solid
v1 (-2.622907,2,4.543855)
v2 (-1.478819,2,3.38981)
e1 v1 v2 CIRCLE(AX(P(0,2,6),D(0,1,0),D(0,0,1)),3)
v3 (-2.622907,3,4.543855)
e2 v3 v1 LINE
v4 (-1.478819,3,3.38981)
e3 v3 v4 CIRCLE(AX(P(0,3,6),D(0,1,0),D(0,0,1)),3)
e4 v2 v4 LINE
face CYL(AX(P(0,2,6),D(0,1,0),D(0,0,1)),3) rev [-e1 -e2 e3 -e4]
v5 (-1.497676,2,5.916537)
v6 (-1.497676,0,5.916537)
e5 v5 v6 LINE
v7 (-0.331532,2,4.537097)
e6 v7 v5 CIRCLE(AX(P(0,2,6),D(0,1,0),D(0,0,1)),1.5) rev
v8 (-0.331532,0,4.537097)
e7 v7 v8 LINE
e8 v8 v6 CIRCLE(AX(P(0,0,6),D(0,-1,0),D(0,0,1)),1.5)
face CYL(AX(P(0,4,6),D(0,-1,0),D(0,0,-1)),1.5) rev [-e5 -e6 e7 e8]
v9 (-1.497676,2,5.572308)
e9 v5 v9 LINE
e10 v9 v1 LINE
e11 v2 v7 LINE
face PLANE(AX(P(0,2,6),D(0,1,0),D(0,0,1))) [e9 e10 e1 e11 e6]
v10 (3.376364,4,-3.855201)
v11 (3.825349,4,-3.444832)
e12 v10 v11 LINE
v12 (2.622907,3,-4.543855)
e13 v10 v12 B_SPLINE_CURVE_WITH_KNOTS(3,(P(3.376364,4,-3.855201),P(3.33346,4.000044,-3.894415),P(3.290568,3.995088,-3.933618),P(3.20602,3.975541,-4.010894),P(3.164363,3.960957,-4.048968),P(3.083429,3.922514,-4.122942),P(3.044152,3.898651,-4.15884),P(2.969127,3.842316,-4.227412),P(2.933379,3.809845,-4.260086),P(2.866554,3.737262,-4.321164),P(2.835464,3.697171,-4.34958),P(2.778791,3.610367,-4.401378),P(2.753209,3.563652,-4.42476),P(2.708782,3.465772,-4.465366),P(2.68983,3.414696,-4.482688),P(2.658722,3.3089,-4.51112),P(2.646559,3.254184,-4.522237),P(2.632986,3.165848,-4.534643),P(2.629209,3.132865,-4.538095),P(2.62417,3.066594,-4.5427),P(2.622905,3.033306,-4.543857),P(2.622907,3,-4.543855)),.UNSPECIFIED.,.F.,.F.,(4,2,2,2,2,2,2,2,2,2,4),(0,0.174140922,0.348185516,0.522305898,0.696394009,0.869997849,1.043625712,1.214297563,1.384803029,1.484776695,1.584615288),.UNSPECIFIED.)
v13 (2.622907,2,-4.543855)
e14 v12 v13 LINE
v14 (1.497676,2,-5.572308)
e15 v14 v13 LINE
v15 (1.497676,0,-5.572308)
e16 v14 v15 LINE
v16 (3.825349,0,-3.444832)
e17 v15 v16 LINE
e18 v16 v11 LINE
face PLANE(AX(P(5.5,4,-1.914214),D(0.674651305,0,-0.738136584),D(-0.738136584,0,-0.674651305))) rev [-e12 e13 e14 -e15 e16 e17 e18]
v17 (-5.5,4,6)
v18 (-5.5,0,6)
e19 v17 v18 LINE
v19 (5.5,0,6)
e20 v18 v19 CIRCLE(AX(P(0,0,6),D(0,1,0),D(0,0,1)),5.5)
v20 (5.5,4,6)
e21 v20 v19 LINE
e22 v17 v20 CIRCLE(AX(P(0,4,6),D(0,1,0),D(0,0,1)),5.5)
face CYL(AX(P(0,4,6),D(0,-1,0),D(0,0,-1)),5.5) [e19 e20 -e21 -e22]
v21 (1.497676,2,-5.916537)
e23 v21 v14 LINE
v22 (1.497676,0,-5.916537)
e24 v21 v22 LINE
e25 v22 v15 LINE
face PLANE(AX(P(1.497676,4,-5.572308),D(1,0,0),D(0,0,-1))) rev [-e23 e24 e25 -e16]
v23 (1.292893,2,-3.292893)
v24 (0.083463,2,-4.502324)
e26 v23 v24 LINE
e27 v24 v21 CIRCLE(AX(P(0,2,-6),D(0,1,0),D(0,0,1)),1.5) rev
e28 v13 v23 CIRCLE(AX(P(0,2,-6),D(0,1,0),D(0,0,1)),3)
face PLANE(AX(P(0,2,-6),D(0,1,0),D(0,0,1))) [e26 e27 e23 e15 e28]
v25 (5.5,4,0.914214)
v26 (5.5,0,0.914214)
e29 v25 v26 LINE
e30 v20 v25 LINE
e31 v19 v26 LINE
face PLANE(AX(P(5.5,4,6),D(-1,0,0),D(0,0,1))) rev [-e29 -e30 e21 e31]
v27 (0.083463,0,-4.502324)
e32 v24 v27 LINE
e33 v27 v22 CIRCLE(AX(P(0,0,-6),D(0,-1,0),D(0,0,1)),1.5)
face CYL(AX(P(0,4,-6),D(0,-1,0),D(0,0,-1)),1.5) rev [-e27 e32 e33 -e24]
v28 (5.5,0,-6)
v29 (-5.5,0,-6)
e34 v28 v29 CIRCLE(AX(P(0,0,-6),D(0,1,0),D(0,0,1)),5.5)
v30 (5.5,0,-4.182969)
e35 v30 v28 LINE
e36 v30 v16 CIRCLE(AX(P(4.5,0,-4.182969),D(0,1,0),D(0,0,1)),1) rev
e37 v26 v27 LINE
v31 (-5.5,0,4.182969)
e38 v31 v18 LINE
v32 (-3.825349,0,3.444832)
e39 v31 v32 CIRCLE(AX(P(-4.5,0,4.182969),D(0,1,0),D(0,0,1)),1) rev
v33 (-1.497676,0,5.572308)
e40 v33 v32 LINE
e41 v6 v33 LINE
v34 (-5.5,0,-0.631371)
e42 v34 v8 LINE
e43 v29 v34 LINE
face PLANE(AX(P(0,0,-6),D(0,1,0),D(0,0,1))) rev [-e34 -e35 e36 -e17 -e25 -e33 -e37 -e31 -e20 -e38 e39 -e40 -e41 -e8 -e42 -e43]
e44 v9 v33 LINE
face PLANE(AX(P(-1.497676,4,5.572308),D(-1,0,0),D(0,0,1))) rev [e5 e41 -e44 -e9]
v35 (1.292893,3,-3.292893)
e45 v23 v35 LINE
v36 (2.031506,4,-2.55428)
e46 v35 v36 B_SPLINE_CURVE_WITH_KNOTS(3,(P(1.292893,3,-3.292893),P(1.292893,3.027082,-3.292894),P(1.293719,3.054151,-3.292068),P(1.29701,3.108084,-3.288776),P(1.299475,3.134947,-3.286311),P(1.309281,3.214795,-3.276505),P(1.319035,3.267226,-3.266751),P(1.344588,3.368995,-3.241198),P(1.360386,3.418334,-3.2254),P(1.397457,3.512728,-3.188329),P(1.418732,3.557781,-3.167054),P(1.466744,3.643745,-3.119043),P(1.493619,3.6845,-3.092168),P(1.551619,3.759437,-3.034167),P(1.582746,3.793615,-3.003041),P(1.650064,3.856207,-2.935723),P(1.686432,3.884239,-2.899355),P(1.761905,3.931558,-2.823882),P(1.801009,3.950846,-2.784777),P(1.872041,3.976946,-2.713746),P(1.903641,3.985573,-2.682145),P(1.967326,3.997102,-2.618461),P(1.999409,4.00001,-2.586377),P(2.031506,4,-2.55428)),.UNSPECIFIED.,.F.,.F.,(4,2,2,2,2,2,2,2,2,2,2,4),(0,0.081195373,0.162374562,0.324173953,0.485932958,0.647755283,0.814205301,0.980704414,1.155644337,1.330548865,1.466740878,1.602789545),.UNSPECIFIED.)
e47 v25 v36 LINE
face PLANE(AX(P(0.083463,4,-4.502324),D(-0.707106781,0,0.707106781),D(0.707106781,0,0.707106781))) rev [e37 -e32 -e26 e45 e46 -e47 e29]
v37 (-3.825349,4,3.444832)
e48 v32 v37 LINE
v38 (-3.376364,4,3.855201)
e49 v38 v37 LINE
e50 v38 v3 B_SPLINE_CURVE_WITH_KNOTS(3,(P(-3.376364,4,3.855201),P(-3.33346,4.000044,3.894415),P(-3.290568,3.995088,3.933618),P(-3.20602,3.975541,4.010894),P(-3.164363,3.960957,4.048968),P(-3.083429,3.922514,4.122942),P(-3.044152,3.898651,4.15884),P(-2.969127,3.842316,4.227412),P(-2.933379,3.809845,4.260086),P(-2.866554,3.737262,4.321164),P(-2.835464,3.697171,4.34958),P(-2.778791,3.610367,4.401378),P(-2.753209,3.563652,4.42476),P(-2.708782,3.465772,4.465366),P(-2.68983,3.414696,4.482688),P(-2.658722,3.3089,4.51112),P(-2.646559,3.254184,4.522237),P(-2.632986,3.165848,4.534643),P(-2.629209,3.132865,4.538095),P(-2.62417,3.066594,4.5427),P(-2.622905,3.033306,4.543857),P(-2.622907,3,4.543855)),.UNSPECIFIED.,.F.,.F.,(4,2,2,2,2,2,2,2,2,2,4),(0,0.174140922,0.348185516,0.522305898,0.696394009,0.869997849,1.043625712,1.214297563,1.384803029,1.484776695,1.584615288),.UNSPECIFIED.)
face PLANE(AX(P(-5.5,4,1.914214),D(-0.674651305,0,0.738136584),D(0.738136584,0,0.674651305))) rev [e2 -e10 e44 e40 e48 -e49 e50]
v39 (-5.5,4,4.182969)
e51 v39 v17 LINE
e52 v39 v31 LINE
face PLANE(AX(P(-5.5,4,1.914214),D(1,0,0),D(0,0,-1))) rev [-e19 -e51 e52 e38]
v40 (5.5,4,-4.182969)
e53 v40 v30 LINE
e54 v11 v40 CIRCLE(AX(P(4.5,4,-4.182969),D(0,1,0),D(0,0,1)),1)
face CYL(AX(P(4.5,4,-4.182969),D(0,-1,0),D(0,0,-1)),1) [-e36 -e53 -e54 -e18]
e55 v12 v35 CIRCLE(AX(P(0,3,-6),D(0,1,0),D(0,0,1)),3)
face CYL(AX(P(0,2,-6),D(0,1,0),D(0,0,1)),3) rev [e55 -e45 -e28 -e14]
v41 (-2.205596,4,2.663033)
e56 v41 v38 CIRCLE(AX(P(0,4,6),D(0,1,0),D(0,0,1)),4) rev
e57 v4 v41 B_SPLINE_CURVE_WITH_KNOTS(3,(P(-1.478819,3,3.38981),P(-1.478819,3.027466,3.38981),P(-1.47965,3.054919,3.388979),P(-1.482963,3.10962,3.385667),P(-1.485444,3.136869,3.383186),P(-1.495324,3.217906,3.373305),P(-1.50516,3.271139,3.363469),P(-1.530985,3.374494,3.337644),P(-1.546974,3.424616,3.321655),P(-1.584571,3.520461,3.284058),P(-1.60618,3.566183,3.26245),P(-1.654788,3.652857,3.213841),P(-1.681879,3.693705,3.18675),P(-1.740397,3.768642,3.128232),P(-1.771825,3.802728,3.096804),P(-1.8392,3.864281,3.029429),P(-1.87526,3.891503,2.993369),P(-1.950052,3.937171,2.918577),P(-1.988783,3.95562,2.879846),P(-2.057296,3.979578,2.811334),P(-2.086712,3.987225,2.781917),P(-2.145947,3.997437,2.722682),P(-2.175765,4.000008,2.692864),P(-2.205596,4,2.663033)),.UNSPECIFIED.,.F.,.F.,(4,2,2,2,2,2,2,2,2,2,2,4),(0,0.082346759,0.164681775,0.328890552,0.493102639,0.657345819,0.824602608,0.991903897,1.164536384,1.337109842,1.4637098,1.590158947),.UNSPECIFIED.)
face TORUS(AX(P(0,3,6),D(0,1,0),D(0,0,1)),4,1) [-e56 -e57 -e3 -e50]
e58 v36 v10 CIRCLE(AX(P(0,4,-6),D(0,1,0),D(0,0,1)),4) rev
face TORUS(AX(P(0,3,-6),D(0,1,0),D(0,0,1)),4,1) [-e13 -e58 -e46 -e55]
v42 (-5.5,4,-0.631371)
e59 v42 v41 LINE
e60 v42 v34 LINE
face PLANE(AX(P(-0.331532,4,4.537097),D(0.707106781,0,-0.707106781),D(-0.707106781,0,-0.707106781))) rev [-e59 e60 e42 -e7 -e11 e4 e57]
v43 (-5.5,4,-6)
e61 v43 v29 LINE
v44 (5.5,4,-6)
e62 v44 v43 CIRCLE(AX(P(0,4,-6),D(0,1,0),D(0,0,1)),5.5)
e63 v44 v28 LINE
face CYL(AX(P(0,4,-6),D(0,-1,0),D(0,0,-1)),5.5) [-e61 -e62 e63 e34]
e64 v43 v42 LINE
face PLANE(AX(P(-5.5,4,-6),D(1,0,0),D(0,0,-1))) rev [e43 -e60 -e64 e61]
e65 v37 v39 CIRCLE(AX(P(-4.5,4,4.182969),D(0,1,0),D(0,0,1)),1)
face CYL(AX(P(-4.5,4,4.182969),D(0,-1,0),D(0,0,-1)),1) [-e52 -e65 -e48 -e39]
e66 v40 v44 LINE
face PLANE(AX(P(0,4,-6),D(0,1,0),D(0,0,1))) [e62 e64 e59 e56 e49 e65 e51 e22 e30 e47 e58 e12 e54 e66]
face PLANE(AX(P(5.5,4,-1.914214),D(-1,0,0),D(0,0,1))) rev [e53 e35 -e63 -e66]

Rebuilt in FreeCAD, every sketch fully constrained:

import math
import FreeCAD as App
import Part
import Sketcher
Q = App.Units.Quantity


def edges_at(feature, points):
    """Names of the edges that pass closest to the given points."""
    edges = feature.Shape.Edges
    near = lambda p: min(range(len(edges)), key=lambda i: edges[i].distToShape(Part.Vertex(*p))[0])
    return sorted({f"Edge{near(p) + 1}" for p in points})

doc = App.newDocument("Part")
body = doc.addObject("PartDesign::Body", "Body")

sketch1 = body.newObject("Sketcher::SketchObject", "Sketch")
sketch1.AttachmentSupport = (doc.getObject("XZ_Plane"), [""])
sketch1.MapMode = "FlatFace"
sketch1.addGeometry(Part.LineSegment(App.Vector(-5.5, -6, 0), App.Vector(-5.5, -0.63, 0)), False)
sketch1.addGeometry(Part.LineSegment(App.Vector(-5.5, -0.63, 0), App.Vector(-0.33, 4.54, 0)), False)
sketch1.addGeometry(Part.ArcOfCircle(Part.Circle(App.Vector(0, 6, 0), App.Vector(0, 0, 1), 1.5), math.radians(-103), math.radians(183)), False)
sketch1.addGeometry(Part.LineSegment(App.Vector(-1.5, 5.92, 0), App.Vector(-1.5, 5.57, 0)), False)
sketch1.addGeometry(Part.LineSegment(App.Vector(-1.5, 5.57, 0), App.Vector(-5.5, 1.91, 0)), False)
sketch1.addGeometry(Part.LineSegment(App.Vector(-5.5, 1.91, 0), App.Vector(-5.5, 6, 0)), False)
sketch1.addGeometry(Part.ArcOfCircle(Part.Circle(App.Vector(0, 6, 0), App.Vector(0, 0, 1), 5.5), math.radians(0), math.radians(180)), False)
sketch1.addGeometry(Part.LineSegment(App.Vector(5.5, 6, 0), App.Vector(5.5, 0.91, 0)), False)
sketch1.addGeometry(Part.LineSegment(App.Vector(5.5, 0.91, 0), App.Vector(0.08, -4.5, 0)), False)
sketch1.addGeometry(Part.ArcOfCircle(Part.Circle(App.Vector(0, -6, 0), App.Vector(0, 0, 1), 1.5), math.radians(87), math.radians(363)), False)
sketch1.addGeometry(Part.LineSegment(App.Vector(1.5, -5.92, 0), App.Vector(1.5, -5.57, 0)), False)
sketch1.addGeometry(Part.LineSegment(App.Vector(1.5, -5.57, 0), App.Vector(5.5, -1.91, 0)), False)
sketch1.addGeometry(Part.LineSegment(App.Vector(5.5, -1.91, 0), App.Vector(5.5, -6, 0)), False)
sketch1.addGeometry(Part.ArcOfCircle(Part.Circle(App.Vector(0, -6, 0), App.Vector(0, 0, 1), 5.5), math.radians(180), math.radians(360)), False)
sketch1.addConstraint(Sketcher.Constraint("Coincident", 0, 2, 1, 1))
sketch1.addConstraint(Sketcher.Constraint("Coincident", 1, 2, 2, 1))
sketch1.addConstraint(Sketcher.Constraint("Coincident", 2, 2, 3, 1))
sketch1.addConstraint(Sketcher.Constraint("Coincident", 3, 2, 4, 1))
sketch1.addConstraint(Sketcher.Constraint("Coincident", 4, 2, 5, 1))
sketch1.addConstraint(Sketcher.Constraint("Tangent", 5, 2, 6, 2))
sketch1.addConstraint(Sketcher.Constraint("Tangent", 6, 1, 7, 1))
sketch1.addConstraint(Sketcher.Constraint("Coincident", 7, 2, 8, 1))
sketch1.addConstraint(Sketcher.Constraint("Coincident", 8, 2, 9, 1))
sketch1.addConstraint(Sketcher.Constraint("Coincident", 9, 2, 10, 1))
sketch1.addConstraint(Sketcher.Constraint("Coincident", 10, 2, 11, 1))
sketch1.addConstraint(Sketcher.Constraint("Coincident", 11, 2, 12, 1))
sketch1.addConstraint(Sketcher.Constraint("Tangent", 12, 2, 13, 2))
sketch1.addConstraint(Sketcher.Constraint("Tangent", 13, 1, 0, 1))
sketch1.addConstraint(Sketcher.Constraint("Vertical", 0))
sketch1.addConstraint(Sketcher.Constraint("Vertical", 3))
sketch1.addConstraint(Sketcher.Constraint("Vertical", 5))
sketch1.addConstraint(Sketcher.Constraint("Vertical", 7))
sketch1.addConstraint(Sketcher.Constraint("Vertical", 10))
sketch1.addConstraint(Sketcher.Constraint("Vertical", 12))
sketch1.addConstraint(Sketcher.Constraint("Coincident", 6, 3, 2, 3))
sketch1.addConstraint(Sketcher.Constraint("Coincident", 13, 3, 9, 3))
sketch1.addConstraint(Sketcher.Constraint("Equal", 2, 9))
sketch1.addConstraint(Sketcher.Constraint("Equal", 6, 13))
sketch1.addConstraint(Sketcher.Constraint("Symmetric", 2, 3, 9, 3, -1, 1))
sketch1.addConstraint(Sketcher.Constraint("Symmetric", 3, 2, 10, 2, -1, 1))
sketch1.addConstraint(Sketcher.Constraint("PointOnObject", 2, 3, -2))
sketch1.addConstraint(Sketcher.Constraint("Parallel", 1, 8))
sketch1.addConstraint(Sketcher.Constraint("Parallel", 4, 11))
sketch1.addConstraint(Sketcher.Constraint("Radius", 2, 1.5))
sketch1.addConstraint(Sketcher.Constraint("Radius", 6, 5.5))
sketch1.addConstraint(Sketcher.Constraint("Angle", 1, Q("45 deg")))
sketch1.addConstraint(Sketcher.Constraint("DistanceY", -1, 1, 2, 3, 6.0))
sketch1.addConstraint(Sketcher.Constraint("Distance", 4, 5.422199))
sketch1.addConstraint(Sketcher.Constraint("DistanceY", 0, 1, 0, 2, 5.368629))
sketch1.addConstraint(Sketcher.Constraint("DistanceY", 3, 2, 3, 1, 0.34423))
sketch1.addConstraint(Sketcher.Constraint("Distance", 8, 7.660141))
sketch1.addConstraint(Sketcher.Constraint("DistanceY", 5, 1, 5, 2, 4.085786))
pad1 = body.newObject("PartDesign::Pad", "Pad")
pad1.Profile = sketch1
pad1.Length = 4
pad1.Reversed = True
doc.recompute()

fillet = body.newObject("PartDesign::Fillet", "Fillet")
fillet.Base = (pad1, edges_at(pad1, [(5.5, 2, -1.914), (-5.5, 2, 1.914)]))
fillet.Radius = 1

sketch2 = body.newObject("Sketcher::SketchObject", "Sketch001")
sketch2.AttachmentSupport = (doc.getObject("XZ_Plane"), [""])
sketch2.MapMode = "FlatFace"
sketch2.AttachmentOffset = App.Placement(App.Vector(0, 0, -4), App.Rotation())
sketch2.addGeometry(Part.Circle(App.Vector(0, -6, 0), App.Vector(0, 0, 1), 3), False)
sketch2.addGeometry(Part.Circle(App.Vector(0, 6, 0), App.Vector(0, 0, 1), 3), False)
sketch2.addConstraint(Sketcher.Constraint("Equal", 0, 1))
sketch2.addConstraint(Sketcher.Constraint("Symmetric", 0, 3, 1, 3, -1, 1))
sketch2.addConstraint(Sketcher.Constraint("PointOnObject", 0, 3, -2))
sketch2.addConstraint(Sketcher.Constraint("Diameter", 0, 6.0))
sketch2.addConstraint(Sketcher.Constraint("DistanceY", 0, 3, -1, 1, 6.0))
pocket1 = body.newObject("PartDesign::Pocket", "Pocket")
pocket1.Profile = sketch2
pocket1.Length = 2
pocket1.Reversed = True
doc.recompute()

fillet2 = body.newObject("PartDesign::Fillet", "Fillet001")
fillet2.Base = (pocket1, edges_at(pocket1, [(-2.055, 4, -8.185), (2.13, 4, 8.112)]))
fillet2.Radius = 1

doc.recompute()
